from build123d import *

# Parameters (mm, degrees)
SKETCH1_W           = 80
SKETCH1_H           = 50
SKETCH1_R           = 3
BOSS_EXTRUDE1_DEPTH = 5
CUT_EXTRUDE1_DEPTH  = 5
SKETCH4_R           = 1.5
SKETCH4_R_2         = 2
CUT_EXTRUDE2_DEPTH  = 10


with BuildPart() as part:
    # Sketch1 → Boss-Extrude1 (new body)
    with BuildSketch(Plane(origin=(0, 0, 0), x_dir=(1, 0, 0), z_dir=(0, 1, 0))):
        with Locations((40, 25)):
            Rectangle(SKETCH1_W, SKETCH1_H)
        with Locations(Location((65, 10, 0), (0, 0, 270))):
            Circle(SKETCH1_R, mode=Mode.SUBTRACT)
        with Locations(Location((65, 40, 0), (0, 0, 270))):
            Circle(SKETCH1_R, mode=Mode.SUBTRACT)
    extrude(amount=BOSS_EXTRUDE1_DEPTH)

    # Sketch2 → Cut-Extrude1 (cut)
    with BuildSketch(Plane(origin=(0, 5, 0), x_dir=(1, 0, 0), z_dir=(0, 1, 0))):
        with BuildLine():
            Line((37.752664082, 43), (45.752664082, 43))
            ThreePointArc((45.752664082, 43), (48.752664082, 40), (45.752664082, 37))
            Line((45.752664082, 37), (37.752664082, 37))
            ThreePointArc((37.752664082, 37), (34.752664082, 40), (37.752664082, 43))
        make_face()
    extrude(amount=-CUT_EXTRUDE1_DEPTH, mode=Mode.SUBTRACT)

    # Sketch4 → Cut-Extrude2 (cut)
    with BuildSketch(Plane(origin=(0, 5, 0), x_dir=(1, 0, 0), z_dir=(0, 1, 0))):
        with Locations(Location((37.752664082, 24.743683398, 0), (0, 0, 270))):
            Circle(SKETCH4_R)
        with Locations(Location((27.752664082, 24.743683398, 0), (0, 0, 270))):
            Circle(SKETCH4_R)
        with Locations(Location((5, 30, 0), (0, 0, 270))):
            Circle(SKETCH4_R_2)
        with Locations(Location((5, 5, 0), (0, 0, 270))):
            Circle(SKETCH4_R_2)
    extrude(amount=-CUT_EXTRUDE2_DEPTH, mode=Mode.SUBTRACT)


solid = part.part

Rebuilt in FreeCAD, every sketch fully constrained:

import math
import FreeCAD as App
import Part
import Sketcher

V = App.Vector


def add_polygon(sketch, points):
    """Adds a closed chain of lines whose ends are joined by coincident constraints."""
    first, n = sketch.GeometryCount, len(points)
    for a, b in zip(points, points[1:] + points[:1]):
        sketch.addGeometry(Part.LineSegment(App.Vector(*a, 0), App.Vector(*b, 0)), False)
    for i in range(n):
        sketch.addConstraint(Sketcher.Constraint("Coincident", first + i, 2, first + (i + 1) % n, 1))

doc = App.newDocument("Part")
body = doc.addObject("PartDesign::Body", "Body")

# Sketch on XZ plane
sketch1 = doc.addObject("Sketcher::SketchObject", "Sketch")
body.addObject(sketch1)
sketch1.AttachmentSupport = (doc.XZ_Plane, [""])
sketch1.MapMode = "FlatFace"
add_polygon(sketch1, [(0, -50), (0, 0), (80, 0), (80, -50)])  # lines 0-3
sketch1.addGeometry(Part.Circle(V(65, -10, 0), V(0, 0, 1), 3), False)  # 4
sketch1.addGeometry(Part.Circle(V(65, -40, 0), V(0, 0, 1), 3), False)  # 5
sketch1.addConstraint([
    Sketcher.Constraint("Vertical", 0),
    Sketcher.Constraint("Horizontal", 1),
    Sketcher.Constraint("Vertical", 2),
    Sketcher.Constraint("Horizontal", 3),
    Sketcher.Constraint("Coincident", 0, 2, -1, 1),
    Sketcher.Constraint("Equal", 4, 5),
    Sketcher.Constraint("Vertical", 4, 3, 5, 3),
    Sketcher.Constraint("Diameter", 4, 6.0),
    Sketcher.Constraint("DistanceX", 1, 1, 1, 2, 80.0),
    Sketcher.Constraint("DistanceY", 0, 1, 0, 2, 50.0),
    Sketcher.Constraint("DistanceX", -1, 1, 4, 3, 65.0),
    Sketcher.Constraint("DistanceY", 4, 3, -1, 1, 10.0),
    Sketcher.Constraint("DistanceY", 5, 3, -1, 1, 40.0),
])
pad1 = doc.addObject("PartDesign::Pad", "Pad")
body.addObject(pad1)
pad1.Profile = sketch1
pad1.Length = 5
pad1.Reversed = True

# Sketch on XZ plane
sketch2 = doc.addObject("Sketcher::SketchObject", "Sketch001")
body.addObject(sketch2)
sketch2.AttachmentSupport = (doc.XZ_Plane, [""])
sketch2.MapMode = "FlatFace"
sketch2.AttachmentOffset = App.Placement(V(0, 0, -5), App.Rotation())
sketch2.addGeometry([
    Part.LineSegment(V(45.8, -43, 0), V(37.8, -43, 0)),
    Part.ArcOfCircle(Part.Circle(V(37.8, -40, 0), V(0, 0, 1), 3), math.radians(90), math.radians(270)),
    Part.LineSegment(V(37.8, -37, 0), V(45.8, -37, 0)),
    Part.ArcOfCircle(Part.Circle(V(45.8, -40, 0), V(0, 0, 1), 3), math.radians(-90), math.radians(90)),
], False)
sketch2.addConstraint([
    Sketcher.Constraint("Tangent", 0, 2, 1, 2),
    Sketcher.Constraint("Tangent", 1, 1, 2, 1),
    Sketcher.Constraint("Tangent", 2, 2, 3, 2),
    Sketcher.Constraint("Tangent", 3, 1, 0, 1),
    Sketcher.Constraint("Horizontal", 0),
    Sketcher.Constraint("Horizontal", 2),
    Sketcher.Constraint("Radius", 1, 3.0),
    Sketcher.Constraint("DistanceX", 0, 2, 0, 1, 8.0),
    Sketcher.Constraint("DistanceY", 1, 3, -1, 1, 40.0),
    Sketcher.Constraint("DistanceX", -1, 1, 1, 3, 37.752664),
])
pocket1 = doc.addObject("PartDesign::Pocket", "Pocket")
body.addObject(pocket1)
pocket1.Profile = sketch2
pocket1.Length = 5
pocket1.Reversed = True

# Sketch on XZ plane
sketch3 = doc.addObject("Sketcher::SketchObject", "Sketch002")
body.addObject(sketch3)
sketch3.AttachmentSupport = (doc.XZ_Plane, [""])
sketch3.MapMode = "FlatFace"
sketch3.AttachmentOffset = App.Placement(V(0, 0, -5), App.Rotation())
sketch3.addGeometry([
    Part.Circle(V(37.8, -24.7, 0), V(0, 0, 1), 1.5),
    Part.Circle(V(27.8, -24.7, 0), V(0, 0, 1), 1.5),
    Part.Circle(V(5, -30, 0), V(0, 0, 1), 2),
    Part.Circle(V(5, -5, 0), V(0, 0, 1), 2),
], False)
sketch3.addConstraint([
    Sketcher.Constraint("Equal", 0, 1),
    Sketcher.Constraint("Equal", 2, 3),
    Sketcher.Constraint("Horizontal", 0, 3, 1, 3),
    Sketcher.Constraint("Vertical", 2, 3, 3, 3),
    Sketcher.Constraint("Diameter", 0, 3.0),
    Sketcher.Constraint("Diameter", 2, 4.0),
    Sketcher.Constraint("DistanceX", -1, 1, 2, 3, 5.0),
    Sketcher.Constraint("DistanceY", 2, 3, -1, 1, 30.0),
    Sketcher.Constraint("DistanceY", 3, 3, -1, 1, 5.0),
    Sketcher.Constraint("DistanceX", 1, 3, 0, 3, 10.0),
    Sketcher.Constraint("DistanceX", -1, 1, 0, 3, 37.752664),
    Sketcher.Constraint("DistanceY", 0, 3, -1, 1, 24.743683),
])
pocket2 = doc.addObject("PartDesign::Pocket", "Pocket001")
body.addObject(pocket2)
pocket2.Profile = sketch3
pocket2.Length = 10
pocket2.Reversed = True

doc.recompute()
